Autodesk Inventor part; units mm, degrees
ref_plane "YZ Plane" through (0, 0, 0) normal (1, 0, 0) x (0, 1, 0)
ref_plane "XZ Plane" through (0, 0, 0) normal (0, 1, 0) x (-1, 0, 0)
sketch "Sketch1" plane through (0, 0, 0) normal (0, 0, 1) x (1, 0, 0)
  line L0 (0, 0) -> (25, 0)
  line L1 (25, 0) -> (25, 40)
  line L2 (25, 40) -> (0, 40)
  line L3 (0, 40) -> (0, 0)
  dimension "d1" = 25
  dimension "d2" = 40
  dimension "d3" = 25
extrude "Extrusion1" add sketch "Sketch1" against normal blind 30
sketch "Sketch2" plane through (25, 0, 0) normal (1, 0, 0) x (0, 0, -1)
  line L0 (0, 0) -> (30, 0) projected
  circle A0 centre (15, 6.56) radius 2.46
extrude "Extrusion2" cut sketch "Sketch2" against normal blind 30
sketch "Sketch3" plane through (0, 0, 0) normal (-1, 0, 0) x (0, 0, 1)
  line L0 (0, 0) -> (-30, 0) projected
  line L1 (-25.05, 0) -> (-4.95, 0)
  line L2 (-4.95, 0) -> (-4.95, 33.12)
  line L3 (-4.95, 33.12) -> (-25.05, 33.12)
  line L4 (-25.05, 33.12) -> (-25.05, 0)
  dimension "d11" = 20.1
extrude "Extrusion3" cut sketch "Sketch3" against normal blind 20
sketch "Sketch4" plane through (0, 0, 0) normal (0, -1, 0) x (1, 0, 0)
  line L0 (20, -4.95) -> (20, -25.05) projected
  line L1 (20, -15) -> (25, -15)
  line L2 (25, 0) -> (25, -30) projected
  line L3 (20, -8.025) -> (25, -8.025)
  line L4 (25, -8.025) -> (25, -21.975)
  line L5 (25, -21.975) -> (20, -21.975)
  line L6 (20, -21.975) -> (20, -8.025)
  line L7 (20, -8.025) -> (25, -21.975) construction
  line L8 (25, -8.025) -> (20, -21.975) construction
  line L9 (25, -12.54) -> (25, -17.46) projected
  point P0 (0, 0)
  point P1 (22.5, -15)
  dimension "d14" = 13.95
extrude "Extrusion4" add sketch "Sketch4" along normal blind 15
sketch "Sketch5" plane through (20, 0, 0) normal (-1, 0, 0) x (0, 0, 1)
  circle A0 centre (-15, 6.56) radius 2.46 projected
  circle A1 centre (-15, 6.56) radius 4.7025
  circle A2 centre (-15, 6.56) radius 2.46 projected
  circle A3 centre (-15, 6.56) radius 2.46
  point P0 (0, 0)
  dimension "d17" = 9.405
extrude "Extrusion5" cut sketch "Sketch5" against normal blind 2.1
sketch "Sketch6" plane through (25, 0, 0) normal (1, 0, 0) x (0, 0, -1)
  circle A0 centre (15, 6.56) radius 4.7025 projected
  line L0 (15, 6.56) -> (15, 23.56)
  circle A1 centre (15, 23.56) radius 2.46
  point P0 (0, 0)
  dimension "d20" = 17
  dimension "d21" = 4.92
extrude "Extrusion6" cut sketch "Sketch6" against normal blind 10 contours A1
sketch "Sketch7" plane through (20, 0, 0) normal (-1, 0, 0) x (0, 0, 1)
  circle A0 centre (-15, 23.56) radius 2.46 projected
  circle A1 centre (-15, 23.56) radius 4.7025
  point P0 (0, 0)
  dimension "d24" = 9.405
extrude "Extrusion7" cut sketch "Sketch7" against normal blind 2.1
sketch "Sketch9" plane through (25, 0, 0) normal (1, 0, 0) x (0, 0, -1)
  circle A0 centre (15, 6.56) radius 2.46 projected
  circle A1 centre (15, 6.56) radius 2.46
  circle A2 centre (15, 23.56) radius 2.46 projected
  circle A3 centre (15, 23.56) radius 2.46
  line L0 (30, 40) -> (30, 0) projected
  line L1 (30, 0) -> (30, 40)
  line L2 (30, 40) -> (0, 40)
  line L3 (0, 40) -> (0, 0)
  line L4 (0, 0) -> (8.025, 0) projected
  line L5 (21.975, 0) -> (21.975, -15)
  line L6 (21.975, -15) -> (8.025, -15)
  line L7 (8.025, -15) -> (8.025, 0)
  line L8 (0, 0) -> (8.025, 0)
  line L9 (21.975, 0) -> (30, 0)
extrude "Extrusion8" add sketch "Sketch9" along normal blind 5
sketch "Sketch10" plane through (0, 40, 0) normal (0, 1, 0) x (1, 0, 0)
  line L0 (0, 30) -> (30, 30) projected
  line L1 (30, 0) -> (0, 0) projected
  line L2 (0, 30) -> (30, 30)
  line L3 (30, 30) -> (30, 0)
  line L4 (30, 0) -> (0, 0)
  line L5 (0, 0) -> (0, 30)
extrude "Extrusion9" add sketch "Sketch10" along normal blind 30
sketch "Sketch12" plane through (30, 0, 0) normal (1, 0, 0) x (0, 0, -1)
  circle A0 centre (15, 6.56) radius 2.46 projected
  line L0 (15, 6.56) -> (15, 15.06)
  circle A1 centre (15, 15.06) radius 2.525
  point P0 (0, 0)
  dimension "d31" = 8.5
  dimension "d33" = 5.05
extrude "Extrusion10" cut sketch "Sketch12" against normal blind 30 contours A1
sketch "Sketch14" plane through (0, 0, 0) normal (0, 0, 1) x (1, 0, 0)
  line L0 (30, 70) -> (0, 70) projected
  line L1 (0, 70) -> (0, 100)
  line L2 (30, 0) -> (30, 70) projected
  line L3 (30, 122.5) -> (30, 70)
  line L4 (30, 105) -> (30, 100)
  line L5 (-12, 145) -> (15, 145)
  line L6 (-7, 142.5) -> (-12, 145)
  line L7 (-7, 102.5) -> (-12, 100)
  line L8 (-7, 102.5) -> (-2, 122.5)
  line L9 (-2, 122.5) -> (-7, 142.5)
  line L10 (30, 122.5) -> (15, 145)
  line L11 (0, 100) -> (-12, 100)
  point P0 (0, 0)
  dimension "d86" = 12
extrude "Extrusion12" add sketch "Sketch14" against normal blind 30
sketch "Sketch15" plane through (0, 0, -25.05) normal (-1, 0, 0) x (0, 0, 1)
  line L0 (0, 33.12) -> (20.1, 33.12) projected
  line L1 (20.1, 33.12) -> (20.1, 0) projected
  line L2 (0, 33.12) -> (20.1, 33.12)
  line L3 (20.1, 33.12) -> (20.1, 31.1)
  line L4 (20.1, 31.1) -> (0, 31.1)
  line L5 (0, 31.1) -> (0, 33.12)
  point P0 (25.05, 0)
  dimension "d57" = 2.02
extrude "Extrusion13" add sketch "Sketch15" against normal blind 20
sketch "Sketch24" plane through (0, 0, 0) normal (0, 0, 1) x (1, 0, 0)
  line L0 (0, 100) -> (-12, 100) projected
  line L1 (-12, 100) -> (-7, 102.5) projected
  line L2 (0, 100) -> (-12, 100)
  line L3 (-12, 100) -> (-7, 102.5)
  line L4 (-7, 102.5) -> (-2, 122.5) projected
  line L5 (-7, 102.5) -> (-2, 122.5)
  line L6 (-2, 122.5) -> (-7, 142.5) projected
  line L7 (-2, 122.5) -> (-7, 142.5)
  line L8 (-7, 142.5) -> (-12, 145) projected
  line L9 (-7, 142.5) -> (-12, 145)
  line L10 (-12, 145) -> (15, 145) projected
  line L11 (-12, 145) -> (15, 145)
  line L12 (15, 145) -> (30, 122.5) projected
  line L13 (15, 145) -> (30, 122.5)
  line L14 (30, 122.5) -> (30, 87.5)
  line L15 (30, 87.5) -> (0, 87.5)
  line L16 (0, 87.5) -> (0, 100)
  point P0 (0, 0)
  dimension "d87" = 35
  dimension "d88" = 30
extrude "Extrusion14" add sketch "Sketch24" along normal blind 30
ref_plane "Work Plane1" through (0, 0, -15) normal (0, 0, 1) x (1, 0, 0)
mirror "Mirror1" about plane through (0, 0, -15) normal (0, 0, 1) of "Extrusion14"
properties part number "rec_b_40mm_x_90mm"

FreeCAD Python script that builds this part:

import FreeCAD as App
import Part
import Sketcher

doc = App.newDocument("Part")
body = doc.addObject("PartDesign::Body", "Body")

# Sketch on XY plane
sketch1 = doc.addObject("Sketcher::SketchObject", "Sketch")
body.addObject(sketch1)
sketch1.AttachmentSupport = (doc.XY_Plane, [""])
sketch1.MapMode = "FlatFace"
sketch1.addGeometry([
    Part.LineSegment(App.Vector(0, 40, 0), App.Vector(0, 0, 0)),
    Part.LineSegment(App.Vector(0, 0, 0), App.Vector(25, 0, 0)),
    Part.LineSegment(App.Vector(25, 0, 0), App.Vector(25, 40, 0)),
    Part.LineSegment(App.Vector(25, 40, 0), App.Vector(0, 40, 0)),
], False)
sketch1.addConstraint([
    Sketcher.Constraint("Coincident", 0, 2, 1, 1),
    Sketcher.Constraint("Coincident", 1, 2, 2, 1),
    Sketcher.Constraint("Coincident", 2, 2, 3, 1),
    Sketcher.Constraint("Coincident", 3, 2, 0, 1),
    Sketcher.Constraint("Vertical", 0),
    Sketcher.Constraint("Horizontal", 1),
    Sketcher.Constraint("Vertical", 2),
    Sketcher.Constraint("Horizontal", 3),
    Sketcher.Constraint("Coincident", 0, 2, -1, 1),
    Sketcher.Constraint("DistanceX", 1, 1, 1, 2, 25.0),
    Sketcher.Constraint("DistanceY", 0, 2, 0, 1, 40.0),
])
pad1 = doc.addObject("PartDesign::Pad", "Pad")
body.addObject(pad1)
pad1.Profile = sketch1
pad1.Length = 30
pad1.Reversed = True

# Sketch on YZ plane
sketch2 = doc.addObject("Sketcher::SketchObject", "Sketch001")
body.addObject(sketch2)
sketch2.AttachmentSupport = (doc.YZ_Plane, [""])
sketch2.MapMode = "FlatFace"
sketch2.AttachmentOffset = App.Placement(App.Vector(0, 0, 25), App.Rotation())
sketch2.addGeometry(Part.Circle(App.Vector(6.6, -15, 0), App.Vector(0, 0, 1), 2.5), False)
sketch2.addConstraint([
    Sketcher.Constraint("Diameter", 0, 4.92),
    Sketcher.Constraint("DistanceY", 0, 3, -1, 1, 15.0),
    Sketcher.Constraint("DistanceX", -1, 1, 0, 3, 6.56),
])
pocket1 = doc.addObject("PartDesign::Pocket", "Pocket")
body.addObject(pocket1)
pocket1.Profile = sketch2
pocket1.Length = 30

# Sketch on YZ plane
sketch3 = doc.addObject("Sketcher::SketchObject", "Sketch002")
body.addObject(sketch3)
sketch3.AttachmentSupport = (doc.YZ_Plane, [""])
sketch3.MapMode = "FlatFace"
sketch3.addGeometry([
    Part.LineSegment(App.Vector(0, -25, 0), App.Vector(0, -5, 0)),
    Part.LineSegment(App.Vector(0, -5, 0), App.Vector(33, -5, 0)),
    Part.LineSegment(App.Vector(33, -5, 0), App.Vector(33, -25, 0)),
    Part.LineSegment(App.Vector(33, -25, 0), App.Vector(0, -25, 0)),
], False)
sketch3.addConstraint([
    Sketcher.Constraint("Coincident", 0, 2, 1, 1),
    Sketcher.Constraint("Coincident", 1, 2, 2, 1),
    Sketcher.Constraint("Coincident", 2, 2, 3, 1),
    Sketcher.Constraint("Coincident", 3, 2, 0, 1),
    Sketcher.Constraint("Vertical", 0),
    Sketcher.Constraint("Horizontal", 1),
    Sketcher.Constraint("Vertical", 2),
    Sketcher.Constraint("Horizontal", 3),
    Sketcher.Constraint("PointOnObject", 0, 2, -2),
    Sketcher.Constraint("DistanceY", 0, 1, 0, 2, 20.1),
    Sketcher.Constraint("DistanceX", 1, 1, 1, 2, 33.12),
    Sketcher.Constraint("DistanceY", 0, 2, -1, 1, 4.95),
])
pocket2 = doc.addObject("PartDesign::Pocket", "Pocket001")
body.addObject(pocket2)
pocket2.Profile = sketch3
pocket2.Length = 20
pocket2.Reversed = True

# Sketch on XZ plane
sketch4 = doc.addObject("Sketcher::SketchObject", "Sketch003")
body.addObject(sketch4)
sketch4.AttachmentSupport = (doc.XZ_Plane, [""])
sketch4.MapMode = "FlatFace"
sketch4.addGeometry([
    Part.LineSegment(App.Vector(25, -8, 0), App.Vector(20, -8, 0)),
    Part.LineSegment(App.Vector(20, -8, 0), App.Vector(20, -22, 0)),
    Part.LineSegment(App.Vector(20, -22, 0), App.Vector(25, -22, 0)),
    Part.LineSegment(App.Vector(25, -22, 0), App.Vector(25, -8, 0)),
], False)
sketch4.addConstraint([
    Sketcher.Constraint("Coincident", 0, 2, 1, 1),
    Sketcher.Constraint("Coincident", 1, 2, 2, 1),
    Sketcher.Constraint("Coincident", 2, 2, 3, 1),
    Sketcher.Constraint("Coincident", 3, 2, 0, 1),
    Sketcher.Constraint("Horizontal", 0),
    Sketcher.Constraint("Vertical", 1),
    Sketcher.Constraint("Horizontal", 2),
    Sketcher.Constraint("Vertical", 3),
    Sketcher.Constraint("DistanceY", 1, 2, 1, 1, 13.95),
    Sketcher.Constraint("DistanceX", 0, 2, 0, 1, 5.0),
    Sketcher.Constraint("DistanceX", -1, 1, 0, 2, 20.0),
    Sketcher.Constraint("DistanceY", 0, 2, -1, 1, 8.025),
])
pad2 = doc.addObject("PartDesign::Pad", "Pad001")
body.addObject(pad2)
pad2.Profile = sketch4
pad2.Length = 15

# Sketch on YZ plane
sketch5 = doc.addObject("Sketcher::SketchObject", "Sketch004")
body.addObject(sketch5)
sketch5.AttachmentSupport = (doc.YZ_Plane, [""])
sketch5.MapMode = "FlatFace"
sketch5.AttachmentOffset = App.Placement(App.Vector(0, 0, 20), App.Rotation())
sketch5.addGeometry([
    Part.Circle(App.Vector(6.6, -15, 0), App.Vector(0, 0, 1), 4.7),
    Part.Circle(App.Vector(6.6, -15, 0), App.Vector(0, 0, 1), 2.5),
], False)
sketch5.addConstraint([
    Sketcher.Constraint("Coincident", 1, 3, 0, 3),
    Sketcher.Constraint("Diameter", 0, 9.405),
    Sketcher.Constraint("Diameter", 1, 4.92),
    Sketcher.Constraint("DistanceY", 0, 3, -1, 1, 15.0),
    Sketcher.Constraint("DistanceX", -1, 1, 0, 3, 6.56),
])
pocket3 = doc.addObject("PartDesign::Pocket", "Pocket002")
body.addObject(pocket3)
pocket3.Profile = sketch5
pocket3.Length = 2.1
pocket3.Reversed = True

# Sketch on YZ plane
sketch6 = doc.addObject("Sketcher::SketchObject", "Sketch005")
body.addObject(sketch6)
sketch6.AttachmentSupport = (doc.YZ_Plane, [""])
sketch6.MapMode = "FlatFace"
sketch6.AttachmentOffset = App.Placement(App.Vector(0, 0, 25), App.Rotation())
sketch6.addGeometry(Part.Circle(App.Vector(23.6, -15, 0), App.Vector(0, 0, 1), 2.5), False)
sketch6.addConstraint([
    Sketcher.Constraint("Diameter", 0, 4.92),
    Sketcher.Constraint("DistanceY", 0, 3, -1, 1, 15.0),
    Sketcher.Constraint("DistanceX", -1, 1, 0, 3, 23.56),
])
pocket4 = doc.addObject("PartDesign::Pocket", "Pocket003")
body.addObject(pocket4)
pocket4.Profile = sketch6
pocket4.Length = 10

# Sketch on YZ plane
sketch7 = doc.addObject("Sketcher::SketchObject", "Sketch006")
body.addObject(sketch7)
sketch7.AttachmentSupport = (doc.YZ_Plane, [""])
sketch7.MapMode = "FlatFace"
sketch7.AttachmentOffset = App.Placement(App.Vector(0, 0, 20), App.Rotation())
sketch7.addGeometry([
    Part.Circle(App.Vector(23.6, -15, 0), App.Vector(0, 0, 1), 4.7),
    Part.Circle(App.Vector(23.6, -15, 0), App.Vector(0, 0, 1), 2.5),
], False)
sketch7.addConstraint([
    Sketcher.Constraint("Coincident", 1, 3, 0, 3),
    Sketcher.Constraint("Diameter", 0, 9.405),
    Sketcher.Constraint("Diameter", 1, 4.92),
    Sketcher.Constraint("DistanceY", 0, 3, -1, 1, 15.0),
    Sketcher.Constraint("DistanceX", -1, 1, 0, 3, 23.56),
])
pocket5 = doc.addObject("PartDesign::Pocket", "Pocket004")
body.addObject(pocket5)
pocket5.Profile = sketch7
pocket5.Length = 2.1
pocket5.Reversed = True

# Sketch on YZ plane
sketch8 = doc.addObject("Sketcher::SketchObject", "Sketch007")
body.addObject(sketch8)
sketch8.AttachmentSupport = (doc.YZ_Plane, [""])
sketch8.MapMode = "FlatFace"
sketch8.AttachmentOffset = App.Placement(App.Vector(0, 0, 25), App.Rotation())
sketch8.addGeometry([
    Part.LineSegment(App.Vector(0, -30, 0), App.Vector(40, -30, 0)),  # 0
    Part.LineSegment(App.Vector(40, -30, 0), App.Vector(40, 0, 0)),  # 1
    Part.LineSegment(App.Vector(40, 0, 0), App.Vector(0, 0, 0)),  # 2
    Part.LineSegment(App.Vector(0, 0, 0), App.Vector(0, -8, 0)),  # 3
    Part.LineSegment(App.Vector(0, -8, 0), App.Vector(-15, -8, 0)),  # 4
    Part.LineSegment(App.Vector(-15, -8, 0), App.Vector(-15, -22, 0)),  # 5
    Part.LineSegment(App.Vector(-15, -22, 0), App.Vector(0, -22, 0)),  # 6
    Part.LineSegment(App.Vector(0, -22, 0), App.Vector(0, -30, 0)),  # 7
    Part.Circle(App.Vector(6.6, -15, 0), App.Vector(0, 0, 1), 2.5),  # 8
    Part.Circle(App.Vector(23.6, -15, 0), App.Vector(0, 0, 1), 2.5),  # 9
], False)
sketch8.addConstraint([
    Sketcher.Constraint("Coincident", 0, 2, 1, 1),
    Sketcher.Constraint("Coincident", 1, 2, 2, 1),
    Sketcher.Constraint("Coincident", 2, 2, 3, 1),
    Sketcher.Constraint("Coincident", 3, 2, 4, 1),
    Sketcher.Constraint("Coincident", 4, 2, 5, 1),
    Sketcher.Constraint("Coincident", 5, 2, 6, 1),
    Sketcher.Constraint("Coincident", 6, 2, 7, 1),
    Sketcher.Constraint("Coincident", 7, 2, 0, 1),
    Sketcher.Constraint("Horizontal", 0),
    Sketcher.Constraint("Vertical", 1),
    Sketcher.Constraint("Horizontal", 2),
    Sketcher.Constraint("Vertical", 3),
    Sketcher.Constraint("Horizontal", 4),
    Sketcher.Constraint("Vertical", 5),
    Sketcher.Constraint("Horizontal", 6),
    Sketcher.Constraint("Vertical", 7),
    Sketcher.Constraint("Coincident", 2, 2, -1, 1),
    Sketcher.Constraint("Equal", 8, 9),
    Sketcher.Constraint("PointOnObject", 6, 2, -2),
    Sketcher.Constraint("Horizontal", 8, 3, 9, 3),
    Sketcher.Constraint("Equal", 3, 7),
    Sketcher.Constraint("Diameter", 8, 4.92),
    Sketcher.Constraint("DistanceX", 0, 1, 0, 2, 40.0),
    Sketcher.Constraint("DistanceX", 4, 2, 4, 1, 15.0),
    Sketcher.Constraint("DistanceY", 1, 1, 1, 2, 30.0),
    Sketcher.Constraint("DistanceY", 8, 3, -1, 1, 15.0),
    Sketcher.Constraint("DistanceX", 8, 3, 9, 3, 17.0),
    Sketcher.Constraint("DistanceY", 5, 2, 5, 1, 13.95),
    Sketcher.Constraint("DistanceX", -1, 1, 8, 3, 6.56),
])
pad3 = doc.addObject("PartDesign::Pad", "Pad002")
body.addObject(pad3)
pad3.Profile = sketch8
pad3.Length = 5

# Sketch on XZ plane
sketch9 = doc.addObject("Sketcher::SketchObject", "Sketch008")
body.addObject(sketch9)
sketch9.AttachmentSupport = (doc.XZ_Plane, [""])
sketch9.MapMode = "FlatFace"
sketch9.AttachmentOffset = App.Placement(App.Vector(0, 0, -40), App.Rotation())
sketch9.addGeometry([
    Part.LineSegment(App.Vector(30, -30, 0), App.Vector(0, -30, 0)),
    Part.LineSegment(App.Vector(0, -30, 0), App.Vector(0, 0, 0)),
    Part.LineSegment(App.Vector(0, 0, 0), App.Vector(30, 0, 0)),
    Part.LineSegment(App.Vector(30, 0, 0), App.Vector(30, -30, 0)),
], False)
sketch9.addConstraint([
    Sketcher.Constraint("Coincident", 0, 2, 1, 1),
    Sketcher.Constraint("Coincident", 1, 2, 2, 1),
    Sketcher.Constraint("Coincident", 2, 2, 3, 1),
    Sketcher.Constraint("Coincident", 3, 2, 0, 1),
    Sketcher.Constraint("Horizontal", 0),
    Sketcher.Constraint("Vertical", 1),
    Sketcher.Constraint("Horizontal", 2),
    Sketcher.Constraint("Vertical", 3),
    Sketcher.Constraint("Coincident", 1, 2, -1, 1),
    Sketcher.Constraint("Equal", 2, 1),
    Sketcher.Constraint("DistanceX", 0, 2, 0, 1, 30.0),
])
pad4 = doc.addObject("PartDesign::Pad", "Pad003")
body.addObject(pad4)
pad4.Profile = sketch9
pad4.Length = 30
pad4.Reversed = True

# Sketch on YZ plane
sketch10 = doc.addObject("Sketcher::SketchObject", "Sketch009")
body.addObject(sketch10)
sketch10.AttachmentSupport = (doc.YZ_Plane, [""])
sketch10.MapMode = "FlatFace"
sketch10.AttachmentOffset = App.Placement(App.Vector(0, 0, 30), App.Rotation())
sketch10.addGeometry(Part.Circle(App.Vector(15.1, -15, 0), App.Vector(0, 0, 1), 2.5), False)
sketch10.addConstraint([
    Sketcher.Constraint("Diameter", 0, 5.05),
    Sketcher.Constraint("DistanceY", 0, 3, -1, 1, 15.0),
    Sketcher.Constraint("DistanceX", -1, 1, 0, 3, 15.06),
])
pocket6 = doc.addObject("PartDesign::Pocket", "Pocket005")
body.addObject(pocket6)
pocket6.Profile = sketch10
pocket6.Length = 30

# Sketch on XY plane
sketch11 = doc.addObject("Sketcher::SketchObject", "Sketch010")
body.addObject(sketch11)
sketch11.AttachmentSupport = (doc.XY_Plane, [""])
sketch11.MapMode = "FlatFace"
sketch11.addGeometry([
    Part.LineSegment(App.Vector(0, 70, 0), App.Vector(30, 70, 0)),  # 0
    Part.LineSegment(App.Vector(30, 70, 0), App.Vector(30, 122, 0)),  # 1
    Part.LineSegment(App.Vector(30, 122, 0), App.Vector(15, 145, 0)),  # 2
    Part.LineSegment(App.Vector(15, 145, 0), App.Vector(-12, 145, 0)),  # 3
    Part.LineSegment(App.Vector(-12, 145, 0), App.Vector(-7, 142, 0)),  # 4
    Part.LineSegment(App.Vector(-7, 142, 0), App.Vector(-2, 122, 0)),  # 5
    Part.LineSegment(App.Vector(-2, 122, 0), App.Vector(-7, 102, 0)),  # 6
    Part.LineSegment(App.Vector(-7, 102, 0), App.Vector(-12, 100, 0)),  # 7
    Part.LineSegment(App.Vector(-12, 100, 0), App.Vector(0, 100, 0)),  # 8
    Part.LineSegment(App.Vector(0, 100, 0), App.Vector(0, 70, 0)),  # 9
], False)
sketch11.addConstraint([
    Sketcher.Constraint("Coincident", 0, 2, 1, 1),
    Sketcher.Constraint("Coincident", 1, 2, 2, 1),
    Sketcher.Constraint("Coincident", 2, 2, 3, 1),
    Sketcher.Constraint("Coincident", 3, 2, 4, 1),
    Sketcher.Constraint("Coincident", 4, 2, 5, 1),
    Sketcher.Constraint("Coincident", 5, 2, 6, 1),
    Sketcher.Constraint("Coincident", 6, 2, 7, 1),
    Sketcher.Constraint("Coincident", 7, 2, 8, 1),
    Sketcher.Constraint("Coincident", 8, 2, 9, 1),
    Sketcher.Constraint("Coincident", 9, 2, 0, 1),
    Sketcher.Constraint("Horizontal", 0),
    Sketcher.Constraint("Vertical", 1),
    Sketcher.Constraint("Horizontal", 3),
    Sketcher.Constraint("Horizontal", 8),
    Sketcher.Constraint("Vertical", 9),
    Sketcher.Constraint("PointOnObject", 8, 2, -2),
    Sketcher.Constraint("Horizontal", 1, 2, 5, 2),
    Sketcher.Constraint("Vertical", 4, 2, 6, 2),
    Sketcher.Constraint("Vertical", 3, 2, 7, 2),
    Sketcher.Constraint("Equal", 0, 9),
    Sketcher.Constraint("Equal", 5, 6),
    Sketcher.Constraint("Equal", 4, 7),
    Sketcher.Constraint("DistanceX", 8, 1, 8, 2, 12.0),
    Sketcher.Constraint("DistanceX", 0, 1, 0, 2, 30.0),
    Sketcher.Constraint("DistanceX", 3, 2, 3, 1, 27.0),
    Sketcher.Constraint("DistanceY", 1, 1, 1, 2, 52.5),
    Sketcher.Constraint("DistanceY", -1, 1, 0, 2, 70.0),
    Sketcher.Constraint("DistanceX", 4, 2, -1, 1, 7.0),
    Sketcher.Constraint("DistanceX", 5, 2, -1, 1, 2.0),
    Sketcher.Constraint("DistanceY", 1, 2, 4, 2, 20.0),
])
pad5 = doc.addObject("PartDesign::Pad", "Pad004")
body.addObject(pad5)
pad5.Profile = sketch11
pad5.Length = 30
pad5.Reversed = True

# Sketch on YZ plane
sketch12 = doc.addObject("Sketcher::SketchObject", "Sketch011")
body.addObject(sketch12)
sketch12.AttachmentSupport = (doc.YZ_Plane, [""])
sketch12.MapMode = "FlatFace"
sketch12.addGeometry([
    Part.LineSegment(App.Vector(33.1, -5, 0), App.Vector(33.1, -25.1, 0)),
    Part.LineSegment(App.Vector(33.1, -25.1, 0), App.Vector(31.1, -25.1, 0)),
    Part.LineSegment(App.Vector(31.1, -25.1, 0), App.Vector(31.1, -5, 0)),
    Part.LineSegment(App.Vector(31.1, -5, 0), App.Vector(33.1, -5, 0)),
], False)
sketch12.addConstraint([
    Sketcher.Constraint("Coincident", 0, 2, 1, 1),
    Sketcher.Constraint("Coincident", 1, 2, 2, 1),
    Sketcher.Constraint("Coincident", 2, 2, 3, 1),
    Sketcher.Constraint("Coincident", 3, 2, 0, 1),
    Sketcher.Constraint("Vertical", 0),
    Sketcher.Constraint("Horizontal", 1),
    Sketcher.Constraint("Vertical", 2),
    Sketcher.Constraint("Horizontal", 3),
    Sketcher.Constraint("DistanceX", 1, 2, 1, 1, 2.02),
    Sketcher.Constraint("DistanceY", 0, 2, 0, 1, 20.1),
    Sketcher.Constraint("DistanceX", -1, 1, 1, 2, 31.1),
    Sketcher.Constraint("DistanceY", 0, 2, -1, 1, 25.05),
])
pad6 = doc.addObject("PartDesign::Pad", "Pad005")
body.addObject(pad6)
pad6.Profile = sketch12
pad6.Length = 20

# Sketch on XY plane
sketch13 = doc.addObject("Sketcher::SketchObject", "Sketch012")
body.addObject(sketch13)
sketch13.AttachmentSupport = (doc.XY_Plane, [""])
sketch13.MapMode = "FlatFace"
sketch13.addGeometry([
    Part.LineSegment(App.Vector(-12, 100, 0), App.Vector(0, 100, 0)),  # 0
    Part.LineSegment(App.Vector(0, 100, 0), App.Vector(0, 88, 0)),  # 1
    Part.LineSegment(App.Vector(0, 88, 0), App.Vector(30, 88, 0)),  # 2
    Part.LineSegment(App.Vector(30, 88, 0), App.Vector(30, 122, 0)),  # 3
    Part.LineSegment(App.Vector(30, 122, 0), App.Vector(15, 145, 0)),  # 4
    Part.LineSegment(App.Vector(15, 145, 0), App.Vector(-12, 145, 0)),  # 5
    Part.LineSegment(App.Vector(-12, 145, 0), App.Vector(-7, 142, 0)),  # 6
    Part.LineSegment(App.Vector(-7, 142, 0), App.Vector(-2, 122, 0)),  # 7
    Part.LineSegment(App.Vector(-2, 122, 0), App.Vector(-7, 102, 0)),  # 8
    Part.LineSegment(App.Vector(-7, 102, 0), App.Vector(-12, 100, 0)),  # 9
], False)
sketch13.addConstraint([
    Sketcher.Constraint("Coincident", 0, 2, 1, 1),
    Sketcher.Constraint("Coincident", 1, 2, 2, 1),
    Sketcher.Constraint("Coincident", 2, 2, 3, 1),
    Sketcher.Constraint("Coincident", 3, 2, 4, 1),
    Sketcher.Constraint("Coincident", 4, 2, 5, 1),
    Sketcher.Constraint("Coincident", 5, 2, 6, 1),
    Sketcher.Constraint("Coincident", 6, 2, 7, 1),
    Sketcher.Constraint("Coincident", 7, 2, 8, 1),
    Sketcher.Constraint("Coincident", 8, 2, 9, 1),
    Sketcher.Constraint("Coincident", 9, 2, 0, 1),
    Sketcher.Constraint("Horizontal", 0),
    Sketcher.Constraint("Vertical", 1),
    Sketcher.Constraint("Horizontal", 2),
    Sketcher.Constraint("Vertical", 3),
    Sketcher.Constraint("Horizontal", 5),
    Sketcher.Constraint("PointOnObject", 0, 2, -2),
    Sketcher.Constraint("Horizontal", 3, 2, 7, 2),
    Sketcher.Constraint("Vertical", 6, 2, 8, 2),
    Sketcher.Constraint("Vertical", 5, 2, 9, 2),
    Sketcher.Constraint("Equal", 7, 8),
    Sketcher.Constraint("Equal", 6, 9),
    Sketcher.Constraint("DistanceX", 2, 1, 2, 2, 30.0),
    Sketcher.Constraint("DistanceY", 3, 1, 3, 2, 35.0),
    Sketcher.Constraint("DistanceX", 0, 1, 0, 2, 12.0),
    Sketcher.Constraint("DistanceX", 5, 2, 5, 1, 27.0),
    Sketcher.Constraint("DistanceY", 1, 2, 1, 1, 12.5),
    Sketcher.Constraint("DistanceY", -1, 1, 0, 2, 100.0),
    Sketcher.Constraint("DistanceX", 6, 2, -1, 1, 7.0),
    Sketcher.Constraint("DistanceX", 7, 2, -1, 1, 2.0),
    Sketcher.Constraint("DistanceY", 3, 2, 6, 2, 20.0),
])
pad7 = doc.addObject("PartDesign::Pad", "Pad006")
body.addObject(pad7)
pad7.Profile = sketch13
pad7.Length = 30
doc.recompute()

datumplane = doc.addObject("PartDesign::Plane", "DatumPlane")
body.addObject(datumplane)
datumplane.AttachmentSupport = (doc.XY_Plane, [""])
datumplane.MapMode = "FlatFace"
datumplane.AttachmentOffset = App.Placement(App.Vector(0, 0, -15), App.Rotation())
mirrored = doc.addObject("PartDesign::Mirrored", "Mirrored")
body.addObject(mirrored)
mirrored.Originals = [pad7]
mirrored.MirrorPlane = (datumplane, [""])
body.Tip = mirrored

doc.recompute()
